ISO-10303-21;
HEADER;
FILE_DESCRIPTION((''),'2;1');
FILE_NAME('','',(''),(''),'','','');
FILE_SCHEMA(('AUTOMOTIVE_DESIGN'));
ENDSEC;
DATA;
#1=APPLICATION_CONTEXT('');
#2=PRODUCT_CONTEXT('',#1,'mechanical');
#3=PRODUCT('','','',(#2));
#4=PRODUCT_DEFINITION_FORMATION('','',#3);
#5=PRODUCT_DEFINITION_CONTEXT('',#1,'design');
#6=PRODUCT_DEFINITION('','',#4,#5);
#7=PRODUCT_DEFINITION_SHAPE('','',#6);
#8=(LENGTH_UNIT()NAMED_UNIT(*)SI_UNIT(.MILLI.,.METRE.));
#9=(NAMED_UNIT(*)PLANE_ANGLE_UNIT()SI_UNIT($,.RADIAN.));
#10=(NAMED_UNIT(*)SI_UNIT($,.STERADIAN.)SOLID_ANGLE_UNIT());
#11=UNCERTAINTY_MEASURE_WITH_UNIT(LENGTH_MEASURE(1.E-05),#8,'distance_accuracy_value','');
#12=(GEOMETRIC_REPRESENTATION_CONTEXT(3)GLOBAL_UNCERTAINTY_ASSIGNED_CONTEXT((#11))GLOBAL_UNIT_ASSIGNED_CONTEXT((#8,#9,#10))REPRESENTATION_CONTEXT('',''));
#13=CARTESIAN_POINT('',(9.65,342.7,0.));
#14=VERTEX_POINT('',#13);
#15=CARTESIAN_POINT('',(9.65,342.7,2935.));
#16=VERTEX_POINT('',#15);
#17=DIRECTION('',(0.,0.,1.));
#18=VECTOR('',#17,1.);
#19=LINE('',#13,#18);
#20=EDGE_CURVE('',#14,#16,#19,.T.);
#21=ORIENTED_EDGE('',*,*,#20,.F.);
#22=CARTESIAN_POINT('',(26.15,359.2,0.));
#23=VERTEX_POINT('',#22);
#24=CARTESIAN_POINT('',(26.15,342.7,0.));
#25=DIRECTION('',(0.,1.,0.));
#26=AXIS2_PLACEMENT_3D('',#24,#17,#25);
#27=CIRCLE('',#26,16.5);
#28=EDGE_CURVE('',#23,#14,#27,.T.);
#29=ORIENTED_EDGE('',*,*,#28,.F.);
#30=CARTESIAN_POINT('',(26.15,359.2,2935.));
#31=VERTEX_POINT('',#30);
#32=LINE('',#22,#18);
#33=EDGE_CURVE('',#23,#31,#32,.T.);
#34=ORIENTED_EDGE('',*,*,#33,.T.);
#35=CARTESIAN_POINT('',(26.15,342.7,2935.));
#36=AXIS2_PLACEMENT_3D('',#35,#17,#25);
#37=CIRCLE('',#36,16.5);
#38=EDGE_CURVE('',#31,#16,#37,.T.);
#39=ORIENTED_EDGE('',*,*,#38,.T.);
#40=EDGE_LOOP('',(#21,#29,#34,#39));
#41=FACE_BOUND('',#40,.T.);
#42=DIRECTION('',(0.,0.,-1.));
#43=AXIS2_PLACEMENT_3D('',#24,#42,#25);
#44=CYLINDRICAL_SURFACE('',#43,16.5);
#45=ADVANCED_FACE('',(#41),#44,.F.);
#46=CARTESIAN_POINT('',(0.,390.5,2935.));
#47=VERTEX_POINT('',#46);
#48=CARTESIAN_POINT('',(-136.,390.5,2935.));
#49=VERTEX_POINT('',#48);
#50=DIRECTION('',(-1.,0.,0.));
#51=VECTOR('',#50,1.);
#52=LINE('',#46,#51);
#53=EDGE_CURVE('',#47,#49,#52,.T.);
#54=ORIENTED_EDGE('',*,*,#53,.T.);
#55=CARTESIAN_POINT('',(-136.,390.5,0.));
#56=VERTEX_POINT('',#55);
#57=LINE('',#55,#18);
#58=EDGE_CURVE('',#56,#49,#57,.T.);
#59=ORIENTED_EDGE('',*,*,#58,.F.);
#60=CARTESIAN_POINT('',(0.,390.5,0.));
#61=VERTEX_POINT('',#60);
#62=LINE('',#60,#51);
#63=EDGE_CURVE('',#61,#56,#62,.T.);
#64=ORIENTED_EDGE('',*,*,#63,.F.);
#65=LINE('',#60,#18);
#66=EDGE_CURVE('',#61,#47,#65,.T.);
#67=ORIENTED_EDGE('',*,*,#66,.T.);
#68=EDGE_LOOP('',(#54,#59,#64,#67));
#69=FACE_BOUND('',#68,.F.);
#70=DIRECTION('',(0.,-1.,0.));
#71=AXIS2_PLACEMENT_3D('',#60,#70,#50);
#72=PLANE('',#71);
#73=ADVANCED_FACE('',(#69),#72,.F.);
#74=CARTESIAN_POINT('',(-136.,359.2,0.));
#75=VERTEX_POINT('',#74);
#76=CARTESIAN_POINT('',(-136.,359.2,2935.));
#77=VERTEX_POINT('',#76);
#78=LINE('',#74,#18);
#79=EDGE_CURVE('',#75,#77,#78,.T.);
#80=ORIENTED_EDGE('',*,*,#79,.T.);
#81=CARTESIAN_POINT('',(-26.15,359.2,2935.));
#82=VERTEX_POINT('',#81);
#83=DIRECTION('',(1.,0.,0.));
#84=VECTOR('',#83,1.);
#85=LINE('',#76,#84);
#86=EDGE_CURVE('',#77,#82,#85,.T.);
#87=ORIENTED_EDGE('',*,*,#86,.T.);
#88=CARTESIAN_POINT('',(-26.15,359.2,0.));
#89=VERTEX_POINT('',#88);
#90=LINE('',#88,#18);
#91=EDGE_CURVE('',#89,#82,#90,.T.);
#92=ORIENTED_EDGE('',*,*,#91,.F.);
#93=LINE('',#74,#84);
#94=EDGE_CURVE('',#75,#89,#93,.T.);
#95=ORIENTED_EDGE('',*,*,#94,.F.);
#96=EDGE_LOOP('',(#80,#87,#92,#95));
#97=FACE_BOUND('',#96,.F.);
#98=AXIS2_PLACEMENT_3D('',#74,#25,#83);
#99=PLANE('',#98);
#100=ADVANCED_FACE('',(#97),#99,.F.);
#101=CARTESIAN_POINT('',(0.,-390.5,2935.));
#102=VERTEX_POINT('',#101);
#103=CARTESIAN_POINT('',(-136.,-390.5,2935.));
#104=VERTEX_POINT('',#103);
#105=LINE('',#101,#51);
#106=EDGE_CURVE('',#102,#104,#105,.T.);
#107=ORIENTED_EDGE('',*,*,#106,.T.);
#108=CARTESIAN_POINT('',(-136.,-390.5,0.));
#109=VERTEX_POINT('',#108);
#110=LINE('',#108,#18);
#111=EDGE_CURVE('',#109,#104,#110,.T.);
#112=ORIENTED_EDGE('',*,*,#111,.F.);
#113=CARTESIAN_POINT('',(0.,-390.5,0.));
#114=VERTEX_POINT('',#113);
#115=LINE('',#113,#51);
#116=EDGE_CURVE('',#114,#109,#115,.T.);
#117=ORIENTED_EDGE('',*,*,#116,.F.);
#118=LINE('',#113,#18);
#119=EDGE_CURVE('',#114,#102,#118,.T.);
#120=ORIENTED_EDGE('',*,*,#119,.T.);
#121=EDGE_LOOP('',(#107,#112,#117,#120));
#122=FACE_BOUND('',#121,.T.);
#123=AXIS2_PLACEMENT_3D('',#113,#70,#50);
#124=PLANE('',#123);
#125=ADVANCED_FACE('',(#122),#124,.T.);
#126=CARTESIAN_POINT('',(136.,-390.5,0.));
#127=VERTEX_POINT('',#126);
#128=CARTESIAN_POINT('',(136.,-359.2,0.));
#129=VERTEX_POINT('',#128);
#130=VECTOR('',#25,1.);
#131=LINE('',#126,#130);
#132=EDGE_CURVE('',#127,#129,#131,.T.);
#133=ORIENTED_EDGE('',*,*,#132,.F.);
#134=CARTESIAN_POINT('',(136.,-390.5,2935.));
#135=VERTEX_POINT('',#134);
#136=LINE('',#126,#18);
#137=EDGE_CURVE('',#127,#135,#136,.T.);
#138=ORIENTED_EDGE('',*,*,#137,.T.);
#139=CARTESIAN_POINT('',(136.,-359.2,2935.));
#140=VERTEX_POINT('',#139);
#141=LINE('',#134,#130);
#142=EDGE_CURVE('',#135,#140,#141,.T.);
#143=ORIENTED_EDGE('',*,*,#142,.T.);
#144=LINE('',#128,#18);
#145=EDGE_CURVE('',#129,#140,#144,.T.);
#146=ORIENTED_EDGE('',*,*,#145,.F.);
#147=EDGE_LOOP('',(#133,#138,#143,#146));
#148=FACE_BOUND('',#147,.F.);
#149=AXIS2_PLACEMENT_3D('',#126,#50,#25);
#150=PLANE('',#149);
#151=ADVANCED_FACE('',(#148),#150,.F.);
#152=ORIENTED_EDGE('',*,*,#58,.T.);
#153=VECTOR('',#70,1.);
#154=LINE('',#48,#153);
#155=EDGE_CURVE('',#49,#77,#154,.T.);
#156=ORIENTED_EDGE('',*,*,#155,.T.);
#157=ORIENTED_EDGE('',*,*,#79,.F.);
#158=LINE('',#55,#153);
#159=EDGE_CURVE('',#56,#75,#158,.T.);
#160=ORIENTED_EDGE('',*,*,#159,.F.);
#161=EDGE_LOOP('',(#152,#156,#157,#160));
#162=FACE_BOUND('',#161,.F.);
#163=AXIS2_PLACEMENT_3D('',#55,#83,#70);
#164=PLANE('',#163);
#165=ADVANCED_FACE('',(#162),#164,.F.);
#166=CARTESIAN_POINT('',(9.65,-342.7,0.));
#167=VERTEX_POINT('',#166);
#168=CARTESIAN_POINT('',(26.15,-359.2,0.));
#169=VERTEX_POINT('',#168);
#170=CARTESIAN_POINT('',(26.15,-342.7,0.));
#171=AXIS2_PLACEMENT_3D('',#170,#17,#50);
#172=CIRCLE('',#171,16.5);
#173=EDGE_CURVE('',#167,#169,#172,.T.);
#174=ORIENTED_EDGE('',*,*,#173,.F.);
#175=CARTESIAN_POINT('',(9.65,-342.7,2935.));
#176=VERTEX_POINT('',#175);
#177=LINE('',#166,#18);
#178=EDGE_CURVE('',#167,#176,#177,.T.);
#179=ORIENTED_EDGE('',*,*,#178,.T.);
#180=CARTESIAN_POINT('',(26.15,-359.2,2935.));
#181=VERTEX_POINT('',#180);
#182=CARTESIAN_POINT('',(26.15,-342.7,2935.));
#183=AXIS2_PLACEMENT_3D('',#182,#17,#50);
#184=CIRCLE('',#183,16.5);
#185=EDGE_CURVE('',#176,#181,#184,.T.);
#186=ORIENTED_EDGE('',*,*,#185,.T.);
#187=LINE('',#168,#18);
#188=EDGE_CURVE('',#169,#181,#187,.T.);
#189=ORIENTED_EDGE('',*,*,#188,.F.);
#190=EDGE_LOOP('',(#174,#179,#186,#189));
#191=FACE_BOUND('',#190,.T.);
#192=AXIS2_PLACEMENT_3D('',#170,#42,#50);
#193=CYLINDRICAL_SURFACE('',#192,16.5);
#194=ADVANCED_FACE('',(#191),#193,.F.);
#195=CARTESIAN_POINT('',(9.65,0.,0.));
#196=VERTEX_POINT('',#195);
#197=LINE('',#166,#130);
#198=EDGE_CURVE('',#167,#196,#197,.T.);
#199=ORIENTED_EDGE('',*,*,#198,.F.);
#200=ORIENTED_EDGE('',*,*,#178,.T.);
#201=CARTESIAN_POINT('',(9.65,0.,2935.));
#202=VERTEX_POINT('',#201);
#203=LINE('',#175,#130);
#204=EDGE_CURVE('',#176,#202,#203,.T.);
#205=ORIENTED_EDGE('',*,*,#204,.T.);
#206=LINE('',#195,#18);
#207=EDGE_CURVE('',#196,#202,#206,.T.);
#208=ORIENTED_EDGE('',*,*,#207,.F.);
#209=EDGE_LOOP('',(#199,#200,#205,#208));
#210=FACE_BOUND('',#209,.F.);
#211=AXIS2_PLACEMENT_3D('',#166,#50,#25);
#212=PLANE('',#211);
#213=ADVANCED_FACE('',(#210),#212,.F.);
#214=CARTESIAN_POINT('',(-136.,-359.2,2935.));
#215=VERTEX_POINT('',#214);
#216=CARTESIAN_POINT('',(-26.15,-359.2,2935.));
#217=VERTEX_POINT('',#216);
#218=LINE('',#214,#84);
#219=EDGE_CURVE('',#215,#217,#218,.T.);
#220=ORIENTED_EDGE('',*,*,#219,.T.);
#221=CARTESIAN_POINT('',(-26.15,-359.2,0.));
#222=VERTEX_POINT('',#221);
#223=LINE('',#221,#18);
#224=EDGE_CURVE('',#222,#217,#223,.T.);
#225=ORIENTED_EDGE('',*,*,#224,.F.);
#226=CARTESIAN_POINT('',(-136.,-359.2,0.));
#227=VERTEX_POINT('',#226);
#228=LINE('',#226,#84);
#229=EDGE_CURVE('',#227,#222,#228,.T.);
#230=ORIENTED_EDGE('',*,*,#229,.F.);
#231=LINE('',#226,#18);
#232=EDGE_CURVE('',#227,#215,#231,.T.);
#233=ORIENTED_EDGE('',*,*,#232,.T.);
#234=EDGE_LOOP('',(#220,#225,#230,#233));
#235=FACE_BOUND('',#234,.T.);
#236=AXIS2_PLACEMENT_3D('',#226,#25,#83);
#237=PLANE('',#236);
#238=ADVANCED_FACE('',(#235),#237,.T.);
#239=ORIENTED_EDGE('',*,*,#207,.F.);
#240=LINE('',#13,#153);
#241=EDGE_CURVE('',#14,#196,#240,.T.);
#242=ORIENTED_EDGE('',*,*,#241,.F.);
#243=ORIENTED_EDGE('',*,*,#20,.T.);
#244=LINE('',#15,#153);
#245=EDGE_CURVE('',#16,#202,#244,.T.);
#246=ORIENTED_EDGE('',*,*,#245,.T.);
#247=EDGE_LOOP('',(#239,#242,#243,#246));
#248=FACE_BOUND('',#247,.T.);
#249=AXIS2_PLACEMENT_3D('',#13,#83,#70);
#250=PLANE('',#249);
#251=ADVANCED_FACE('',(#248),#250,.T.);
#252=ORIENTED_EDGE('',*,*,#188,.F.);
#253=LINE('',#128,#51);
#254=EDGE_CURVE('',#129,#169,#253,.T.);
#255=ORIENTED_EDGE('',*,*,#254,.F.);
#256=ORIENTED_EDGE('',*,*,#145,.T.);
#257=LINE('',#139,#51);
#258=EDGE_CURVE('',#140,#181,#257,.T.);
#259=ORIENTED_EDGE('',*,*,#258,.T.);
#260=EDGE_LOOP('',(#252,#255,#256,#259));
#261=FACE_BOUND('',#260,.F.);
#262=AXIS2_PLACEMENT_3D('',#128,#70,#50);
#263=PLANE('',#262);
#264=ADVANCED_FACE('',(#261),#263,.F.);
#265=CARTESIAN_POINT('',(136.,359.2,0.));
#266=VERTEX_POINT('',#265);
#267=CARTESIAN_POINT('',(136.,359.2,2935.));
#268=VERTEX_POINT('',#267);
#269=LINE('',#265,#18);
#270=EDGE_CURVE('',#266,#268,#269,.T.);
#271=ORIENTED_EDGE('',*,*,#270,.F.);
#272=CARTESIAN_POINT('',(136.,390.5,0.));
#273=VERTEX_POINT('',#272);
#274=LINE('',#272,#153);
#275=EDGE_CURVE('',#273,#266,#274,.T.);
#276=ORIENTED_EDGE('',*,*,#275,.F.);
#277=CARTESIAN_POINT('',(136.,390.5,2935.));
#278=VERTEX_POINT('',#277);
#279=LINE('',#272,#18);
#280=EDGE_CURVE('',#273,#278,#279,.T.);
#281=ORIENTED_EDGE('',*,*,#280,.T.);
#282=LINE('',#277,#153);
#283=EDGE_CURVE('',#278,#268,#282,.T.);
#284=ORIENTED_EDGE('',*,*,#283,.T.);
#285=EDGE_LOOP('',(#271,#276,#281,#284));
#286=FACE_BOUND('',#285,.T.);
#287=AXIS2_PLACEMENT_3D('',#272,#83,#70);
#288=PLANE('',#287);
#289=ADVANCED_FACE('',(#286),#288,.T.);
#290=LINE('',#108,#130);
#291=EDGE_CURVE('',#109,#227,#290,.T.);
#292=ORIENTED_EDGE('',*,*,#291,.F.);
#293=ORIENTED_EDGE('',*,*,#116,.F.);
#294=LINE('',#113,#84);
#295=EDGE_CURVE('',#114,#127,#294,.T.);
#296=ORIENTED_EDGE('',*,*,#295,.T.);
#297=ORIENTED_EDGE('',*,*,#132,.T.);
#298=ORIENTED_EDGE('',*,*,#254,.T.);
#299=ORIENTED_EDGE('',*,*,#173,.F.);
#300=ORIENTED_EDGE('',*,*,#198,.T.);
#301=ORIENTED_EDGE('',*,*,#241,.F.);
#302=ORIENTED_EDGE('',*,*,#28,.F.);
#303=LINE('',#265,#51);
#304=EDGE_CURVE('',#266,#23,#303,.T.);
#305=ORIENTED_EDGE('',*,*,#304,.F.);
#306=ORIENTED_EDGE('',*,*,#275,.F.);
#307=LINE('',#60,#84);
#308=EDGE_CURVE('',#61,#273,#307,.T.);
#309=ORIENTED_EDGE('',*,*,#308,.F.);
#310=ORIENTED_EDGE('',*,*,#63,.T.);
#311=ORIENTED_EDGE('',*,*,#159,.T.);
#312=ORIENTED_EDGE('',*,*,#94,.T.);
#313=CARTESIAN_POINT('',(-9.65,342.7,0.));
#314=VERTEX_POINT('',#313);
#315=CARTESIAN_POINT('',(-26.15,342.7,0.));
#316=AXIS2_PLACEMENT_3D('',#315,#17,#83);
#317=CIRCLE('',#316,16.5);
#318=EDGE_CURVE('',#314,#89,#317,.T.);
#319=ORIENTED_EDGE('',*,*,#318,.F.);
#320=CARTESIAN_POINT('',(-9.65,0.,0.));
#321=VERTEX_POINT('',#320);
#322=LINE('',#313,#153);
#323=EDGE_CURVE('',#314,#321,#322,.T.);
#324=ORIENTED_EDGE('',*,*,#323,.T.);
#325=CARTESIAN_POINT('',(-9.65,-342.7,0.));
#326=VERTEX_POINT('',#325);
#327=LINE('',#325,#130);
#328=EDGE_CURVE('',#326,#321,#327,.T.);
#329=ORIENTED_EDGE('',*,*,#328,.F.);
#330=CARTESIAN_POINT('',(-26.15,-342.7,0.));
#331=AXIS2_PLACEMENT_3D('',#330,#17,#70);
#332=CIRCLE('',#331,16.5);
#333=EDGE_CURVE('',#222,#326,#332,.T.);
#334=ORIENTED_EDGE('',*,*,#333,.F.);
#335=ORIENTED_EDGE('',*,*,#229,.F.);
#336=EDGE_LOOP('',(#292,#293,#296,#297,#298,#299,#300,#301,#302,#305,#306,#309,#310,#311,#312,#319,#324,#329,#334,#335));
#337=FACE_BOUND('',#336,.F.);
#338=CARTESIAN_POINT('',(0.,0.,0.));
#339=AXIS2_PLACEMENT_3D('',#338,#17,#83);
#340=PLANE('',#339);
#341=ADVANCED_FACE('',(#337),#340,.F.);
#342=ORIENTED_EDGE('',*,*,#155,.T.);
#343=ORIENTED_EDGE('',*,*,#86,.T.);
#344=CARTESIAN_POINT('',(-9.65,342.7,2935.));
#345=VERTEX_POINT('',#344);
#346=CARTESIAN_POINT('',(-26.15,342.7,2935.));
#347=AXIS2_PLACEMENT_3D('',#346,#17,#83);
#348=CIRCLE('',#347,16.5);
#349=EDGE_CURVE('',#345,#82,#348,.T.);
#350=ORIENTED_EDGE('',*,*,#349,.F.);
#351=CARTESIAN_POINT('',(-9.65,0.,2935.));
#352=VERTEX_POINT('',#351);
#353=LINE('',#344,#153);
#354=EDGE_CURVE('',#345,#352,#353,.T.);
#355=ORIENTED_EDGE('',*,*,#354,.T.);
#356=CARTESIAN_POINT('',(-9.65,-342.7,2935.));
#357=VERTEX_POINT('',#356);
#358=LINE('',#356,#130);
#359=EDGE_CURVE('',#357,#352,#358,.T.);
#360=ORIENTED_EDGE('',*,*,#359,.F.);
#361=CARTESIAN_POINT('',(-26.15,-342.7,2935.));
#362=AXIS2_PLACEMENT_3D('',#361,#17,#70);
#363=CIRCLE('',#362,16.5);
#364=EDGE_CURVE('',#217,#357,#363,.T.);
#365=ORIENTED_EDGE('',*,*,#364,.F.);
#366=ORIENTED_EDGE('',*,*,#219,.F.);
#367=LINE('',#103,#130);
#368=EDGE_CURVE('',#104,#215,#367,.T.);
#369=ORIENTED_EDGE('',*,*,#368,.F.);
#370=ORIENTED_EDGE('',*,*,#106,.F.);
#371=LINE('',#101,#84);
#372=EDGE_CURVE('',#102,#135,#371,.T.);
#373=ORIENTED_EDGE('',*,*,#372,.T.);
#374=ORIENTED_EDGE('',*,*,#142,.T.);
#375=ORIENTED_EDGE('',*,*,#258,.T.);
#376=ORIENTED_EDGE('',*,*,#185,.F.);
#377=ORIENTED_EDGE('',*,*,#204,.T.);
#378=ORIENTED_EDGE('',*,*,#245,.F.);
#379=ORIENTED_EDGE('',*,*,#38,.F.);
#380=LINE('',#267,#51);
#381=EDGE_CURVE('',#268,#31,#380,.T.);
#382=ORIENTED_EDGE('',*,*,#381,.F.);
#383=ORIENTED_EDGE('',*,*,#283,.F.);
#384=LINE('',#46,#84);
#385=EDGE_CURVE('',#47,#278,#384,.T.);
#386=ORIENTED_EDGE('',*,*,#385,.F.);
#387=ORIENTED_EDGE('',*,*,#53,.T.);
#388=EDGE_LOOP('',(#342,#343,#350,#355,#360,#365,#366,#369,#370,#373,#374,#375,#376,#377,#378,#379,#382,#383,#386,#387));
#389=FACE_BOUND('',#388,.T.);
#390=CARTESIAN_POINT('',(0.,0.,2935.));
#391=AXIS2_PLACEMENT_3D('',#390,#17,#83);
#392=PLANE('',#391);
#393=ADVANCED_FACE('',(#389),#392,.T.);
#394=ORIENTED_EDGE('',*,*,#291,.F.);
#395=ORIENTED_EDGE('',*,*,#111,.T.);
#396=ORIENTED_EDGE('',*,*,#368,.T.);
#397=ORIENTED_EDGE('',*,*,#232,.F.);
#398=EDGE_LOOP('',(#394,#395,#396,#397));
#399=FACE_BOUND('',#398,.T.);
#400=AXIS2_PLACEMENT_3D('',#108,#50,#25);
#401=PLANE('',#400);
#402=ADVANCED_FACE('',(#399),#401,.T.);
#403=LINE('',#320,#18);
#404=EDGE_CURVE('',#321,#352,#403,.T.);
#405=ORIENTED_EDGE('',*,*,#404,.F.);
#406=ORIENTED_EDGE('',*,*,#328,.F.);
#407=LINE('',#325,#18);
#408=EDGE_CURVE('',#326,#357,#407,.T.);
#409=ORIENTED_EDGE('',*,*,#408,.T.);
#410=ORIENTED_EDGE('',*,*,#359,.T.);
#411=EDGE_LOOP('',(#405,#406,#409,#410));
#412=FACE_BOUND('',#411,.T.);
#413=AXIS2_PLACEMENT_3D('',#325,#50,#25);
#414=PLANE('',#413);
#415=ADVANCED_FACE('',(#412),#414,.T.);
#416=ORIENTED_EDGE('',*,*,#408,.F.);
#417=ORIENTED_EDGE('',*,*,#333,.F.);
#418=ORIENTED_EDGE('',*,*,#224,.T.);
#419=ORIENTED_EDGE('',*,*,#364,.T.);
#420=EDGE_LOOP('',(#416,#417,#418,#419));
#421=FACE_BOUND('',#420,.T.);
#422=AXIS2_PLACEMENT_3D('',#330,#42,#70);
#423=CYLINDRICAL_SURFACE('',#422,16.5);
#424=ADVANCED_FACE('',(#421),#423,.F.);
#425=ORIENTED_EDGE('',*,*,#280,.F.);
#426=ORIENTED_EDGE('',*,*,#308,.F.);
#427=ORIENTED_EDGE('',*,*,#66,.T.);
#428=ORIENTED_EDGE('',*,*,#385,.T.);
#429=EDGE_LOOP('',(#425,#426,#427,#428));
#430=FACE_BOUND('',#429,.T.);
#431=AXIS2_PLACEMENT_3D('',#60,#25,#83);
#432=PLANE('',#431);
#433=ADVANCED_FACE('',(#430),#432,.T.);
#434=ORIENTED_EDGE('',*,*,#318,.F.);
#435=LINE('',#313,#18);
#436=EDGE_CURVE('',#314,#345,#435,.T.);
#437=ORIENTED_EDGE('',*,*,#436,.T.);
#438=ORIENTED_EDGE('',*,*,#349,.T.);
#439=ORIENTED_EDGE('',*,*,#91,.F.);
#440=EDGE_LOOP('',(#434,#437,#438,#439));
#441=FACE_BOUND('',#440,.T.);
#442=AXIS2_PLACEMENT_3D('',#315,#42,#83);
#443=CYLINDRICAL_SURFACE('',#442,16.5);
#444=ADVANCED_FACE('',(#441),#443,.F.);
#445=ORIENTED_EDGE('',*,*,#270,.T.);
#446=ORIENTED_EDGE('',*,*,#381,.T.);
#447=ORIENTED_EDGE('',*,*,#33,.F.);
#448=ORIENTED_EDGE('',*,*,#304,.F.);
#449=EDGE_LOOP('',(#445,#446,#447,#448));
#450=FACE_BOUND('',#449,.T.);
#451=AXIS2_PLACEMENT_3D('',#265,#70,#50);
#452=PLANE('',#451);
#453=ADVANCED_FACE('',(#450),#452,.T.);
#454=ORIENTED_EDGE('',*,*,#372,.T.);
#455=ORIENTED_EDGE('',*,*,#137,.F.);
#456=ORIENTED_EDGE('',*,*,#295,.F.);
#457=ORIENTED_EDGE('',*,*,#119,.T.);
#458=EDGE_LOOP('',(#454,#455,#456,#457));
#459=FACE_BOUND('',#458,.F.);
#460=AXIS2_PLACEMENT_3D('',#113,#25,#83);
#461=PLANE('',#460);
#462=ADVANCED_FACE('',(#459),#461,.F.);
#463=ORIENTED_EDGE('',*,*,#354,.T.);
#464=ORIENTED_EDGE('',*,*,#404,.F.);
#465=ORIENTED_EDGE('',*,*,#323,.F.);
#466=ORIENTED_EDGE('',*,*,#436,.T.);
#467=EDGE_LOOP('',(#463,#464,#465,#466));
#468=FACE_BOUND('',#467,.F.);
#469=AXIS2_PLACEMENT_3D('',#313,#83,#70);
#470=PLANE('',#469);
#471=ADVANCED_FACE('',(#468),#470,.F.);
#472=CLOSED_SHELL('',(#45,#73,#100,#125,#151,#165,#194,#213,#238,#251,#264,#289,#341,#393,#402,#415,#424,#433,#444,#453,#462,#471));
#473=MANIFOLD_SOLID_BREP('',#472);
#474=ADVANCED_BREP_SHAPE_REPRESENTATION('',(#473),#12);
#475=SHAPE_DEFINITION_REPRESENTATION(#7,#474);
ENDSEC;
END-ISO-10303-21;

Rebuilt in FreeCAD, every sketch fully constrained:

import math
import FreeCAD as App
import Part
import Sketcher

V = App.Vector
Q = App.Units.Quantity

doc = App.newDocument("Part")
params = doc.addObject("Spreadsheet::Sheet", "Params")
for row, (alias, value) in enumerate([
    ("sketch1_radius", "16.5 mm"),
    ("sketch1_height", "31.3 mm"),
    ("pad1_length", "2935 mm"),
], start=1):
    params.set(f"A{row}", alias)
    params.set(f"B{row}", "=" + value)
    params.setAlias(f"B{row}", alias)

body = doc.addObject("PartDesign::Body", "Body")

sketch1 = body.newObject("Sketcher::SketchObject", "Sketch")
sketch1.AttachmentSupport = (doc.getObject("XY_Plane"), [""])
sketch1.MapMode = "FlatFace"
sketch1.addGeometry(Part.LineSegment(V(-136, -359, 0), V(-136, -390, 0)), False)
sketch1.addGeometry(Part.LineSegment(V(-136, -390, 0), V(136, -390, 0)), False)
sketch1.addGeometry(Part.LineSegment(V(136, -390, 0), V(136, -359, 0)), False)
sketch1.addGeometry(Part.LineSegment(V(136, -359, 0), V(26, -359, 0)), False)
sketch1.addGeometry(Part.ArcOfCircle(Part.Circle(V(26, -343, 0), V(0, 0, 1), 16), math.radians(180), math.radians(270)), False)
sketch1.addGeometry(Part.LineSegment(V(10, -343, 0), V(10, 343, 0)), False)
sketch1.addGeometry(Part.ArcOfCircle(Part.Circle(V(26, 343, 0), V(0, 0, 1), 16), math.radians(90), math.radians(180)), False)
sketch1.addGeometry(Part.LineSegment(V(26, 359, 0), V(136, 359, 0)), False)
sketch1.addGeometry(Part.LineSegment(V(136, 359, 0), V(136, 390, 0)), False)
sketch1.addGeometry(Part.LineSegment(V(136, 390, 0), V(-136, 390, 0)), False)
sketch1.addGeometry(Part.LineSegment(V(-136, 390, 0), V(-136, 359, 0)), False)
sketch1.addGeometry(Part.LineSegment(V(-136, 359, 0), V(-26, 359, 0)), False)
sketch1.addGeometry(Part.ArcOfCircle(Part.Circle(V(-26, 343, 0), V(0, 0, 1), 16), math.radians(0), math.radians(90)), False)
sketch1.addGeometry(Part.LineSegment(V(-10, 343, 0), V(-10, -343, 0)), False)
sketch1.addGeometry(Part.ArcOfCircle(Part.Circle(V(-26, -343, 0), V(0, 0, 1), 16), math.radians(-90), math.radians(0)), False)
sketch1.addGeometry(Part.LineSegment(V(-26, -359, 0), V(-136, -359, 0)), False)
sketch1.addConstraint(Sketcher.Constraint("Coincident", 0, 2, 1, 1))
sketch1.addConstraint(Sketcher.Constraint("Coincident", 1, 2, 2, 1))
sketch1.addConstraint(Sketcher.Constraint("Coincident", 2, 2, 3, 1))
sketch1.addConstraint(Sketcher.Constraint("Tangent", 3, 2, 4, 2))
sketch1.addConstraint(Sketcher.Constraint("Tangent", 4, 1, 5, 1))
sketch1.addConstraint(Sketcher.Constraint("Tangent", 5, 2, 6, 2))
sketch1.addConstraint(Sketcher.Constraint("Tangent", 6, 1, 7, 1))
sketch1.addConstraint(Sketcher.Constraint("Coincident", 7, 2, 8, 1))
sketch1.addConstraint(Sketcher.Constraint("Coincident", 8, 2, 9, 1))
sketch1.addConstraint(Sketcher.Constraint("Coincident", 9, 2, 10, 1))
sketch1.addConstraint(Sketcher.Constraint("Coincident", 10, 2, 11, 1))
sketch1.addConstraint(Sketcher.Constraint("Tangent", 11, 2, 12, 2))
sketch1.addConstraint(Sketcher.Constraint("Tangent", 12, 1, 13, 1))
sketch1.addConstraint(Sketcher.Constraint("Tangent", 13, 2, 14, 2))
sketch1.addConstraint(Sketcher.Constraint("Tangent", 14, 1, 15, 1))
sketch1.addConstraint(Sketcher.Constraint("Coincident", 15, 2, 0, 1))
sketch1.addConstraint(Sketcher.Constraint("Vertical", 0))
sketch1.addConstraint(Sketcher.Constraint("Horizontal", 1))
sketch1.addConstraint(Sketcher.Constraint("Vertical", 2))
sketch1.addConstraint(Sketcher.Constraint("Horizontal", 3))
sketch1.addConstraint(Sketcher.Constraint("Vertical", 5))
sketch1.addConstraint(Sketcher.Constraint("Horizontal", 7))
sketch1.addConstraint(Sketcher.Constraint("Vertical", 8))
sketch1.addConstraint(Sketcher.Constraint("Horizontal", 9))
sketch1.addConstraint(Sketcher.Constraint("Vertical", 10))
sketch1.addConstraint(Sketcher.Constraint("Horizontal", 11))
sketch1.addConstraint(Sketcher.Constraint("Vertical", 13))
sketch1.addConstraint(Sketcher.Constraint("Horizontal", 15))
sketch1.addConstraint(Sketcher.Constraint("Equal", 4, 6))
sketch1.addConstraint(Sketcher.Constraint("Equal", 6, 12))
sketch1.addConstraint(Sketcher.Constraint("Equal", 12, 14))
sketch1.addConstraint(Sketcher.Constraint("Symmetric", 4, 3, 12, 3, -1, 1))
sketch1.addConstraint(Sketcher.Constraint("Symmetric", 0, 2, 8, 2, -1, 1))
sketch1.addConstraint(Sketcher.Constraint("Symmetric", 7, 2, 10, 2, -2))
sketch1.addConstraint(Sketcher.Constraint("Symmetric", 2, 2, 15, 2, -2))
sketch1.addConstraint(Sketcher.Constraint("Radius", 4, Q("16.5 mm")))
sketch1.addConstraint(Sketcher.Constraint("DistanceY", 0, 2, 0, 1, Q("31.3 mm")))
sketch1.addConstraint(Sketcher.Constraint("DistanceX", 0, 2, -1, 1, Q("136 mm")))
sketch1.addConstraint(Sketcher.Constraint("DistanceY", 0, 2, -1, 1, Q("390.5 mm")))
sketch1.addConstraint(Sketcher.Constraint("DistanceX", -1, 1, 4, 1, Q("9.65 mm")))
sketch1.setExpression("Constraints[35]", "Params.sketch1_radius")
sketch1.setExpression("Constraints[36]", "Params.sketch1_height")
pad1 = body.newObject("PartDesign::Pad", "Pad")
pad1.Profile = sketch1
pad1.setExpression("Length", "Params.pad1_length")

doc.recompute()
